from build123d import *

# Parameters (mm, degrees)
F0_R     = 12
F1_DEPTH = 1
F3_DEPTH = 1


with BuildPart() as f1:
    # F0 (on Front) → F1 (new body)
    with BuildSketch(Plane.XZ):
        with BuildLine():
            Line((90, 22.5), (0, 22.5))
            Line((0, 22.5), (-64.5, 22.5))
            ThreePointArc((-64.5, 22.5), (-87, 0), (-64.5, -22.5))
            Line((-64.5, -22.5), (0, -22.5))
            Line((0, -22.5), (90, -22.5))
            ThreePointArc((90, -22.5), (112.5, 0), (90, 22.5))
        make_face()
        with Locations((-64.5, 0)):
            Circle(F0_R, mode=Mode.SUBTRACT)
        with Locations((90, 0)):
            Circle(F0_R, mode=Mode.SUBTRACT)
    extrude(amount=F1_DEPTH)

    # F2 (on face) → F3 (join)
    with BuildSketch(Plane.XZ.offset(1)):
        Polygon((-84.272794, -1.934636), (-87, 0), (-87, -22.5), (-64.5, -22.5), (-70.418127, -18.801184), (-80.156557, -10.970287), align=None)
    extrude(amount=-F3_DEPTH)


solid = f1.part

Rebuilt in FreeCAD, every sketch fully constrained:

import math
import FreeCAD as App
import Part
import Sketcher

doc = App.newDocument("Part")
body = doc.addObject("PartDesign::Body", "Body")

sketch1 = body.newObject("Sketcher::SketchObject", "Sketch")
sketch1.AttachmentSupport = (doc.getObject("XZ_Plane"), [""])
sketch1.MapMode = "FlatFace"
sketch1.addGeometry([
    Part.LineSegment(App.Vector(90, 22.5, 0), App.Vector(-64.5, 22.5, 0)),
    Part.ArcOfCircle(Part.Circle(App.Vector(-64.5, 0, 0), App.Vector(0, 0, 1), 22.5), math.radians(90), math.radians(270)),
    Part.LineSegment(App.Vector(-64.5, -22.5, 0), App.Vector(90, -22.5, 0)),
    Part.ArcOfCircle(Part.Circle(App.Vector(90, 0, 0), App.Vector(0, 0, 1), 22.5), math.radians(-90), math.radians(90)),
    Part.Circle(App.Vector(-64.5, 0, 0), App.Vector(0, 0, 1), 12),
    Part.Circle(App.Vector(90, 0, 0), App.Vector(0, 0, 1), 12),
], False)
sketch1.addConstraint([
    Sketcher.Constraint("Tangent", 0, 2, 1, 1),
    Sketcher.Constraint("Tangent", 1, 2, 2, 1),
    Sketcher.Constraint("Tangent", 2, 2, 3, 1),
    Sketcher.Constraint("Tangent", 3, 2, 0, 1),
    Sketcher.Constraint("Horizontal", 0),
    Sketcher.Constraint("Horizontal", 2),
    Sketcher.Constraint("Coincident", 4, 3, 1, 3),
    Sketcher.Constraint("Coincident", 5, 3, 3, 3),
    Sketcher.Constraint("Equal", 4, 5),
    Sketcher.Constraint("PointOnObject", 1, 3, -1),
    Sketcher.Constraint("Diameter", 4, 24.0),
    Sketcher.Constraint("Radius", 1, 22.5),
    Sketcher.Constraint("DistanceX", 0, 2, 0, 1, 154.5),
    Sketcher.Constraint("DistanceX", -1, 1, 3, 3, 90.0),
])
pad1 = body.newObject("PartDesign::Pad", "Pad")
pad1.Profile = sketch1
pad1.Length = 1

sketch2 = body.newObject("Sketcher::SketchObject", "Sketch001")
sketch2.AttachmentSupport = (doc.getObject("XZ_Plane"), [""])
sketch2.MapMode = "FlatFace"
sketch2.AttachmentOffset = App.Placement(App.Vector(0, 0, 1), App.Rotation())
sketch2.addGeometry([
    Part.LineSegment(App.Vector(-84.272794, -1.934636, 0), App.Vector(-87, 0, 0)),
    Part.LineSegment(App.Vector(-87, 0, 0), App.Vector(-87, -22.5, 0)),
    Part.LineSegment(App.Vector(-87, -22.5, 0), App.Vector(-64.5, -22.5, 0)),
    Part.LineSegment(App.Vector(-64.5, -22.5, 0), App.Vector(-70.418127, -18.801184, 0)),
    Part.LineSegment(App.Vector(-70.418127, -18.801184, 0), App.Vector(-80.156557, -10.970287, 0)),
    Part.LineSegment(App.Vector(-80.156557, -10.970287, 0), App.Vector(-84.272794, -1.934636, 0)),
], False)
sketch2.addConstraint([
    Sketcher.Constraint("Coincident", 0, 2, 1, 1),
    Sketcher.Constraint("Coincident", 1, 2, 2, 1),
    Sketcher.Constraint("Coincident", 2, 2, 3, 1),
    Sketcher.Constraint("Coincident", 3, 2, 4, 1),
    Sketcher.Constraint("Coincident", 4, 2, 5, 1),
    Sketcher.Constraint("Coincident", 5, 2, 0, 1),
    Sketcher.Constraint("Vertical", 1),
    Sketcher.Constraint("Horizontal", 2),
    Sketcher.Constraint("PointOnObject", 0, 2, -1),
    Sketcher.Constraint("Equal", 2, 1),
    Sketcher.Constraint("DistanceX", 2, 1, 2, 2, 22.5),
    Sketcher.Constraint("DistanceX", 0, 2, -1, 1, 87.0),
    Sketcher.Constraint("Distance", 4, 12.496398),
    Sketcher.Constraint("Distance", 0, 3.343721),
    Sketcher.Constraint("Distance", 3, 6.97893),
    Sketcher.Constraint("Distance", 5, 9.929068),
    Sketcher.Constraint("DistanceX", 4, 2, 3, 2, 9.73843),
    Sketcher.Constraint("DistanceY", 4, 2, 5, 2, 9.035651),
])
pad2 = body.newObject("PartDesign::Pad", "Pad001")
pad2.Profile = sketch2
pad2.Length = 1
pad2.Reversed = True

doc.recompute()
